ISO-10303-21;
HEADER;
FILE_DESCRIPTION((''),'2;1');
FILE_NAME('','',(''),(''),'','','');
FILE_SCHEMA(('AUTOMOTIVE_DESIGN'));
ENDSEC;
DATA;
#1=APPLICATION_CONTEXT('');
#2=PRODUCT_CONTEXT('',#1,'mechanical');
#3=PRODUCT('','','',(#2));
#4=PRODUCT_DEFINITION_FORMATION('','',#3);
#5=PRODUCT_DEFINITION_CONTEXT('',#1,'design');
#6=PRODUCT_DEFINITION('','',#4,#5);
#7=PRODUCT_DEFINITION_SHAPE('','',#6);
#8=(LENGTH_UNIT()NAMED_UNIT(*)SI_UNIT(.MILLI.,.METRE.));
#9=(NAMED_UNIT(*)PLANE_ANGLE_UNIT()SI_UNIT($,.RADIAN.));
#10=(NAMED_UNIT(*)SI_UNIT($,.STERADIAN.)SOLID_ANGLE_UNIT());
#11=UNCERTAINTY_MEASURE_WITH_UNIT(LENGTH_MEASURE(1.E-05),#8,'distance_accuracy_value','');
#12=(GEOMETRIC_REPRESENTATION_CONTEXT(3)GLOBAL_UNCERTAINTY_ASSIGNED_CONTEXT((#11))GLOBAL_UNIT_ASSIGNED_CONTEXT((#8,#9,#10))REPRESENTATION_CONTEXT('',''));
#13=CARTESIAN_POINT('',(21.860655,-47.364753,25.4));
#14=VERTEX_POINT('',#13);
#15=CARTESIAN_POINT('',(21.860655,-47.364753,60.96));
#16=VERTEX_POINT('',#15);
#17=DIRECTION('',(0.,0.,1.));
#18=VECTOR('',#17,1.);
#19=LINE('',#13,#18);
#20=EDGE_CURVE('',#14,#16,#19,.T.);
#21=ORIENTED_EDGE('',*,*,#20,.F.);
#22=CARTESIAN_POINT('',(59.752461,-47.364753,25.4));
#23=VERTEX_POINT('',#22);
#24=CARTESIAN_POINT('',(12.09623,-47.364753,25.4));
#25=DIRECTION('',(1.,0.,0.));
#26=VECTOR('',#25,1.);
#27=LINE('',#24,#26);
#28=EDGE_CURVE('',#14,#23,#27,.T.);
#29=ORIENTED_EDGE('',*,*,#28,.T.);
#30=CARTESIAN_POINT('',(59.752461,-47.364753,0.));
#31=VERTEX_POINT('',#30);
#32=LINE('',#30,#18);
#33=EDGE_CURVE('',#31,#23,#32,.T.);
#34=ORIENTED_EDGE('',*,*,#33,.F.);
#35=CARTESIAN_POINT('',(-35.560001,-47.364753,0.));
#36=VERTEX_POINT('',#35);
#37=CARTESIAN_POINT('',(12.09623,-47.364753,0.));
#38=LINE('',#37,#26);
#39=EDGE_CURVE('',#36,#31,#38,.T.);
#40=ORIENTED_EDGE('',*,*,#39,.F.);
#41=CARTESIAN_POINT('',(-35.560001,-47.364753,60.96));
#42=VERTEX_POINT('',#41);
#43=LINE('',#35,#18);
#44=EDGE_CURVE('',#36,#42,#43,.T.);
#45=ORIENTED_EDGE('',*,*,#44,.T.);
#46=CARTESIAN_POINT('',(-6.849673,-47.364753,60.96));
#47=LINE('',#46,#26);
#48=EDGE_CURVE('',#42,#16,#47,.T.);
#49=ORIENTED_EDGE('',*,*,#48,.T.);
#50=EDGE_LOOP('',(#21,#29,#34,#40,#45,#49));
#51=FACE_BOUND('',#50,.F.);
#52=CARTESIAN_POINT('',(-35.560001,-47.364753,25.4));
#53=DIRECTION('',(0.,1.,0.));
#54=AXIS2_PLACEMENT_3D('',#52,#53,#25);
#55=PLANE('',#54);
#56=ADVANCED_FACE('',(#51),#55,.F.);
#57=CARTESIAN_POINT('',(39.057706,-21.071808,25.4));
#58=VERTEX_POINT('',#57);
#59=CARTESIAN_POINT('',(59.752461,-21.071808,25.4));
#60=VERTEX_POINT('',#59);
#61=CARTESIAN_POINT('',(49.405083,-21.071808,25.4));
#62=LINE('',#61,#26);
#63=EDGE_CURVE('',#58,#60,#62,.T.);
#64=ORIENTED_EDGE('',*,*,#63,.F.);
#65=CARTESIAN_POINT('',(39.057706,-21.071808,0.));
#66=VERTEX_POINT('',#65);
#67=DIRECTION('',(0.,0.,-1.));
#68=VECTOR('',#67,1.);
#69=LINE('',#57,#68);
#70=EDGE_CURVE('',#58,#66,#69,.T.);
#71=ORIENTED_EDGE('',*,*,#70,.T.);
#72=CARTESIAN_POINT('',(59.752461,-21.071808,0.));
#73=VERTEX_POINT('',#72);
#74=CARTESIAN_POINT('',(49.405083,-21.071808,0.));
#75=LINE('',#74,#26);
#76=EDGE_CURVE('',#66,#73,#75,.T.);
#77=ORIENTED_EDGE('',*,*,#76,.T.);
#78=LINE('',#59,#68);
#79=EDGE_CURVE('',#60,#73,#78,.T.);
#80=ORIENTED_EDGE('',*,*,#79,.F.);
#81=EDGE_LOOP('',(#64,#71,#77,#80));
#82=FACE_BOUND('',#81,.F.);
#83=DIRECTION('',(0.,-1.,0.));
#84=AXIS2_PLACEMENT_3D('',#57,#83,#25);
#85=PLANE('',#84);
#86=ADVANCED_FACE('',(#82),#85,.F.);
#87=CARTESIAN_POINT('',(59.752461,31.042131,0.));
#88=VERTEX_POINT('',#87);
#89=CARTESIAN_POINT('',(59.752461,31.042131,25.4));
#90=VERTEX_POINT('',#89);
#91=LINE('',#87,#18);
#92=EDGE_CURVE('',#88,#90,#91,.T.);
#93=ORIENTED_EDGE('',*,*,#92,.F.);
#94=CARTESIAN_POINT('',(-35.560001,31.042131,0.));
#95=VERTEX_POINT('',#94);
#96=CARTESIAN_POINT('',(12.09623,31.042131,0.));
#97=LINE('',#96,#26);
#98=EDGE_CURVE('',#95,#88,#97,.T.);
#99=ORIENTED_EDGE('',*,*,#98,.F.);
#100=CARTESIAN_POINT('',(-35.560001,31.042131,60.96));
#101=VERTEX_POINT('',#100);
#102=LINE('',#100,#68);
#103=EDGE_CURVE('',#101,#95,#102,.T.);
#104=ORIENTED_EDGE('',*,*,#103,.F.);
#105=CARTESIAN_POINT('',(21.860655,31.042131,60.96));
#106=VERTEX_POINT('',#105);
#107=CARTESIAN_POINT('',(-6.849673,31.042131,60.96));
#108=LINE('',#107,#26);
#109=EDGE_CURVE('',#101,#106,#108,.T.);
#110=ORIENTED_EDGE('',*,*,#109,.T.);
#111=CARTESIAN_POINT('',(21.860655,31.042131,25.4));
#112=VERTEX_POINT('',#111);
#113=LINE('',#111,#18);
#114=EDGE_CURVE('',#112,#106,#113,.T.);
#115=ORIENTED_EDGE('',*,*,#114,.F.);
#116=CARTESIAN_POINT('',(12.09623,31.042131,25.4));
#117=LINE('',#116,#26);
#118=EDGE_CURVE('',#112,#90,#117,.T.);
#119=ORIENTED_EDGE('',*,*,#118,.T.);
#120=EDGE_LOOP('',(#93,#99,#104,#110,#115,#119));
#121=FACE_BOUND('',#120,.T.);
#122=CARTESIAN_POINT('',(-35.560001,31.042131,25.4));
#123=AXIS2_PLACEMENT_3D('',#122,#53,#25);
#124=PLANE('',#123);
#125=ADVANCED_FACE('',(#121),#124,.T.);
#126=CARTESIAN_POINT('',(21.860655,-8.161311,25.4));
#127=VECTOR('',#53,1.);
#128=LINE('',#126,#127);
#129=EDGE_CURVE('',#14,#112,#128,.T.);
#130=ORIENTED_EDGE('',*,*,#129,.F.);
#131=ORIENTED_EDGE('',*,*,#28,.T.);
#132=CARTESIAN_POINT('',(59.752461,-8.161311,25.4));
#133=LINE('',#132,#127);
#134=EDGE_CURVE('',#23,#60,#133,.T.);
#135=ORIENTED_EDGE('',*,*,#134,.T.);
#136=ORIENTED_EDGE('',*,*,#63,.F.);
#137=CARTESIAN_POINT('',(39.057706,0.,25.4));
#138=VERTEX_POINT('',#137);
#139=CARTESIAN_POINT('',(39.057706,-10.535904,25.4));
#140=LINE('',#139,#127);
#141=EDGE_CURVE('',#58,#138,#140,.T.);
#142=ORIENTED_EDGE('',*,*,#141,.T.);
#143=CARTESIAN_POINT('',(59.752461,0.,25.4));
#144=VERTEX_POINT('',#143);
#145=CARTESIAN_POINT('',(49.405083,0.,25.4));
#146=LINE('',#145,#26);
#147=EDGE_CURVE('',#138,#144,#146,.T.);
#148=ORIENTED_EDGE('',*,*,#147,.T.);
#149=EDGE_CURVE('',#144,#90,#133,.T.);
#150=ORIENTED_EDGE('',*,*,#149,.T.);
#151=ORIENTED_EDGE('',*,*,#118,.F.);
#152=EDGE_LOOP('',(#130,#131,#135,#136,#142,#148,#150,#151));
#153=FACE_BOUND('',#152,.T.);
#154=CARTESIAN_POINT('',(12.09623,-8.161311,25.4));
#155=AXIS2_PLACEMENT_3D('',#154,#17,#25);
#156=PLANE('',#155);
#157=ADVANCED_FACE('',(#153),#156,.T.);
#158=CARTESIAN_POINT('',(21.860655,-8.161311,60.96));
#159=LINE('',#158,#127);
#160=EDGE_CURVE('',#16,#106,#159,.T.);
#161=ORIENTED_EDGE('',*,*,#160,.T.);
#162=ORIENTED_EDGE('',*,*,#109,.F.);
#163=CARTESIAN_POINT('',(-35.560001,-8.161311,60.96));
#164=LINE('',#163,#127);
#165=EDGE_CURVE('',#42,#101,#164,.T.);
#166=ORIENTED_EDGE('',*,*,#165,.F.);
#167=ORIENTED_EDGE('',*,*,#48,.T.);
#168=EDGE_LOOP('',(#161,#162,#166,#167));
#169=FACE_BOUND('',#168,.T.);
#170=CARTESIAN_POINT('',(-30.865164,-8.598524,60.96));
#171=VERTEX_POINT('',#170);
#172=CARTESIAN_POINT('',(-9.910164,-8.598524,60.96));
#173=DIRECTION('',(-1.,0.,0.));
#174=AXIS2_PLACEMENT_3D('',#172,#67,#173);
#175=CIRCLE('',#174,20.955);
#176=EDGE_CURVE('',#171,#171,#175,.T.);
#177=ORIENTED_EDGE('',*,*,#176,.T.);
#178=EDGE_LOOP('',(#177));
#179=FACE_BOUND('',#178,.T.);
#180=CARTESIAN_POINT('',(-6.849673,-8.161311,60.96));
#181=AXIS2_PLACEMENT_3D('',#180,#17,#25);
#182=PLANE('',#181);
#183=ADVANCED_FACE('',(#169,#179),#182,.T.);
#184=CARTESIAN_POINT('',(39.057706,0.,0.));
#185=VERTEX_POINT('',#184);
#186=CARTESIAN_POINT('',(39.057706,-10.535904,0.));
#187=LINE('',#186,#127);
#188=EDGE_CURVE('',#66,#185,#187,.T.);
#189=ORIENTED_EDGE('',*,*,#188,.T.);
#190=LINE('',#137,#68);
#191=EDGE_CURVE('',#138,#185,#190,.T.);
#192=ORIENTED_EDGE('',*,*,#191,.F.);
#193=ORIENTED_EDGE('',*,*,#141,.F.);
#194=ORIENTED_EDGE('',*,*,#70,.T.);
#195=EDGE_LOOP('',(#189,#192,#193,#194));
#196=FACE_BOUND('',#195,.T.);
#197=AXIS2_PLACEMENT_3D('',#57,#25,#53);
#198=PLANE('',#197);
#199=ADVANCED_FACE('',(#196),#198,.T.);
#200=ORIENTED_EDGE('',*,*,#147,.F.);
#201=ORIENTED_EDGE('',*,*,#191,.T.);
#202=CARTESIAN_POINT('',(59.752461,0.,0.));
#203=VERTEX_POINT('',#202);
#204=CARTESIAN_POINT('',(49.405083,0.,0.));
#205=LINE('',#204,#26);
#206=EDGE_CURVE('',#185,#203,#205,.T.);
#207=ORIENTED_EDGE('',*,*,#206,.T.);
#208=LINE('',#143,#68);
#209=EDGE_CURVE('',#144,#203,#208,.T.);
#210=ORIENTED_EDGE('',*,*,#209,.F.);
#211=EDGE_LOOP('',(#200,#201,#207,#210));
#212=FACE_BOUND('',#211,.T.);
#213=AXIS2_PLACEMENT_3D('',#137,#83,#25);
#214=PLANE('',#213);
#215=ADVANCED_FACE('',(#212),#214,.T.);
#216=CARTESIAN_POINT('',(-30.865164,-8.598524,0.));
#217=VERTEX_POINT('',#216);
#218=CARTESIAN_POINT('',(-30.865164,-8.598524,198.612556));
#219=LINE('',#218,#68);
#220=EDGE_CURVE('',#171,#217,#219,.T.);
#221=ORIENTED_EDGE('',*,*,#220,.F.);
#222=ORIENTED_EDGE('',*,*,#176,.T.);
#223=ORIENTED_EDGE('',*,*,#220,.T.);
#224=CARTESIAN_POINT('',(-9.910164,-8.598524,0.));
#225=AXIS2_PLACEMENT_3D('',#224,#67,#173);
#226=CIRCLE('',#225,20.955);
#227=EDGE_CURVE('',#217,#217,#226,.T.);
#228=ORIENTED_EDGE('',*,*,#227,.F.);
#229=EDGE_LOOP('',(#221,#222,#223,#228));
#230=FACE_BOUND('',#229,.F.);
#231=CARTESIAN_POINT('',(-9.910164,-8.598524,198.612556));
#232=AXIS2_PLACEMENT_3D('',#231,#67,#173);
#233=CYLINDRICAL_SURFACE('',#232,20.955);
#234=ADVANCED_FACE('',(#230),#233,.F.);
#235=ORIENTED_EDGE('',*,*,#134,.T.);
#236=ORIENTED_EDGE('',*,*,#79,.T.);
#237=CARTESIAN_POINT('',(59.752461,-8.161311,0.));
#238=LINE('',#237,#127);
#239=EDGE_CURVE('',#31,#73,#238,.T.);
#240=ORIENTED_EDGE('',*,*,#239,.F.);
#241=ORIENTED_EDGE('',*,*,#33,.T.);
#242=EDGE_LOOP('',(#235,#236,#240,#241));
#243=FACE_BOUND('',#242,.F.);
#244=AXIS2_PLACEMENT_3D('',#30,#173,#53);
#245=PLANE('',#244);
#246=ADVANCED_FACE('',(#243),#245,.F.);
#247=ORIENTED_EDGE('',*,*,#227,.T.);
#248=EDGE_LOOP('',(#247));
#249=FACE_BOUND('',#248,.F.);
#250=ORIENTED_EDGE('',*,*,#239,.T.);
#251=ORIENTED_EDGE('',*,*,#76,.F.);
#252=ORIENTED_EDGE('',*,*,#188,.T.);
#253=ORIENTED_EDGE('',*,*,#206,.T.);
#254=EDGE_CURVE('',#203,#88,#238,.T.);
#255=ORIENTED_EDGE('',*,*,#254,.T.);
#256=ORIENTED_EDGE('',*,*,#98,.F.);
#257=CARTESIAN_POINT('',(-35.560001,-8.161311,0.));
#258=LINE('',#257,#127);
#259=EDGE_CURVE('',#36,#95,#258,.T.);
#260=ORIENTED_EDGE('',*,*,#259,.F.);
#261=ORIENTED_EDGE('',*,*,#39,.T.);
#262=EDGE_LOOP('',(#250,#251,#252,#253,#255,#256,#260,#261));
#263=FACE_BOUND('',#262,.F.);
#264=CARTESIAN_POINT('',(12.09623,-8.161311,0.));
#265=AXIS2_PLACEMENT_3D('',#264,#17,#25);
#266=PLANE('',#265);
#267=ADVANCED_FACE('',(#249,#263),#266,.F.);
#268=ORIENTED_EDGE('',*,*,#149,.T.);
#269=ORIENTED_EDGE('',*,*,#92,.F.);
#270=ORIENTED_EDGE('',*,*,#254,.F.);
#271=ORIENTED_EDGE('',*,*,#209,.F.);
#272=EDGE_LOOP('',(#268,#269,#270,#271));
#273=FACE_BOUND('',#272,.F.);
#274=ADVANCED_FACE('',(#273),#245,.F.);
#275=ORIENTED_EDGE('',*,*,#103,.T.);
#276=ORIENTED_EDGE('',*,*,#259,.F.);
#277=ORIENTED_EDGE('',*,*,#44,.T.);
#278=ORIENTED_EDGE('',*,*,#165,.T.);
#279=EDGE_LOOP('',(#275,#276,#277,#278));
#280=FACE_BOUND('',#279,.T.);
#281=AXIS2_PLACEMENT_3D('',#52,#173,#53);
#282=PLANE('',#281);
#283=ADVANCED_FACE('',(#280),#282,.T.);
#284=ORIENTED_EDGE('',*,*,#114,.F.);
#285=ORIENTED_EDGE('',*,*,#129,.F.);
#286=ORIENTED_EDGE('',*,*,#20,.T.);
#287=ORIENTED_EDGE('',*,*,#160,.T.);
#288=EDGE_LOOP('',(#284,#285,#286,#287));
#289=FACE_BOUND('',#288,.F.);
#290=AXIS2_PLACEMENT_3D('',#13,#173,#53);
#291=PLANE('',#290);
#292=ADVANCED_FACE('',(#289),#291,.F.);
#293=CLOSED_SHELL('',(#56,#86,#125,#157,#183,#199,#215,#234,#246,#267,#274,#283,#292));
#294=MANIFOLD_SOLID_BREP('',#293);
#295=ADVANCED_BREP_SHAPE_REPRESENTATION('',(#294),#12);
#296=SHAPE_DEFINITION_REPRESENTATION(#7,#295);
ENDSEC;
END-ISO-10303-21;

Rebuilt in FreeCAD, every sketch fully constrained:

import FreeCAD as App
import Part
import Sketcher
Q = App.Units.Quantity


def add_polygon(sketch, points):
    """Adds a closed chain of lines whose ends are joined by coincident constraints."""
    first, n = sketch.GeometryCount, len(points)
    for a, b in zip(points, points[1:] + points[:1]):
        sketch.addGeometry(Part.LineSegment(App.Vector(*a, 0), App.Vector(*b, 0)), False)
    for i in range(n):
        sketch.addConstraint(Sketcher.Constraint("Coincident", first + i, 2, first + (i + 1) % n, 1))

doc = App.newDocument("Part")
body = doc.addObject("PartDesign::Body", "Body")

sketch1 = body.newObject("Sketcher::SketchObject", "Sketch")
sketch1.AttachmentSupport = (doc.getObject("XY_Plane"), [""])
sketch1.MapMode = "FlatFace"
add_polygon(sketch1, [(-36, 31), (-36, -47), (60, -47), (60, 31)])
sketch1.addConstraint([
    Sketcher.Constraint("Vertical", 0),
    Sketcher.Constraint("Horizontal", 1),
    Sketcher.Constraint("Vertical", 2),
    Sketcher.Constraint("Horizontal", 3),
    Sketcher.Constraint("DistanceX", 0, 2, -1, 1, Q("1.4 in")),
    Sketcher.Constraint("DistanceX", 1, 1, 1, 2, 95.312461),
    Sketcher.Constraint("DistanceY", 0, 2, 0, 1, 78.406883),
    Sketcher.Constraint("DistanceY", -1, 1, 2, 2, 31.042131),
])
pad1 = body.newObject("PartDesign::Pad", "Pad")
pad1.Profile = sketch1
pad1.Length = Q("1 in")

sketch2 = body.newObject("Sketcher::SketchObject", "Sketch001")
sketch2.AttachmentSupport = (doc.getObject("XY_Plane"), [""])
sketch2.MapMode = "FlatFace"
sketch2.AttachmentOffset = App.Placement(App.Vector(0, 0, 1 * 25.4), App.Rotation())
add_polygon(sketch2, [(39, 0), (39, -21), (60, -21), (60, 0)])
sketch2.addConstraint([
    Sketcher.Constraint("Vertical", 0),
    Sketcher.Constraint("Horizontal", 1),
    Sketcher.Constraint("Vertical", 2),
    Sketcher.Constraint("Horizontal", 3),
    Sketcher.Constraint("PointOnObject", 2, 2, -1),
    Sketcher.Constraint("DistanceY", 0, 2, 0, 1, 21.071808),
    Sketcher.Constraint("DistanceX", 1, 1, 1, 2, 20.694755),
    Sketcher.Constraint("DistanceX", -1, 1, 1, 2, 59.752461),
])
pocket1 = body.newObject("PartDesign::Pocket", "Pocket")
pocket1.Profile = sketch2
pocket1.Length = Q("1 in")

sketch3 = body.newObject("Sketcher::SketchObject", "Sketch002")
sketch3.AttachmentSupport = (doc.getObject("XY_Plane"), [""])
sketch3.MapMode = "FlatFace"
sketch3.AttachmentOffset = App.Placement(App.Vector(0, 0, 1 * 25.4), App.Rotation())
add_polygon(sketch3, [(-36, 31), (-36, -47), (22, -47), (22, 31)])
sketch3.addConstraint([
    Sketcher.Constraint("Vertical", 0),
    Sketcher.Constraint("Horizontal", 1),
    Sketcher.Constraint("Vertical", 2),
    Sketcher.Constraint("Horizontal", 3),
    Sketcher.Constraint("DistanceX", 0, 2, -1, 1, Q("1.4 in")),
    Sketcher.Constraint("DistanceX", 1, 1, 1, 2, 57.420656),
    Sketcher.Constraint("DistanceY", 0, 2, 0, 1, 78.406883),
    Sketcher.Constraint("DistanceY", -1, 1, 2, 2, 31.042131),
])
pad2 = body.newObject("PartDesign::Pad", "Pad001")
pad2.Profile = sketch3
pad2.Length = Q("1.4 in")

sketch4 = body.newObject("Sketcher::SketchObject", "Sketch003")
sketch4.AttachmentSupport = (doc.getObject("XY_Plane"), [""])
sketch4.MapMode = "FlatFace"
sketch4.AttachmentOffset = App.Placement(App.Vector(0, 0, 2.4 * 25.4), App.Rotation())
sketch4.addGeometry(Part.Circle(App.Vector(-10, -9, 0), App.Vector(0, 0, 1), 21), False)
sketch4.addConstraint([
    Sketcher.Constraint("Diameter", 0, Q("1.65 in")),
    Sketcher.Constraint("DistanceX", 0, 3, -1, 1, 9.910164),
    Sketcher.Constraint("DistanceY", 0, 3, -1, 1, 8.598524),
])
doc.recompute()
hole = body.newObject("PartDesign::Hole", "Hole")
hole.Profile = sketch4
hole.ThreadType = "None"
hole.Diameter = Q("1.65 in")
hole.DepthType = "ThroughAll"

doc.recompute()
